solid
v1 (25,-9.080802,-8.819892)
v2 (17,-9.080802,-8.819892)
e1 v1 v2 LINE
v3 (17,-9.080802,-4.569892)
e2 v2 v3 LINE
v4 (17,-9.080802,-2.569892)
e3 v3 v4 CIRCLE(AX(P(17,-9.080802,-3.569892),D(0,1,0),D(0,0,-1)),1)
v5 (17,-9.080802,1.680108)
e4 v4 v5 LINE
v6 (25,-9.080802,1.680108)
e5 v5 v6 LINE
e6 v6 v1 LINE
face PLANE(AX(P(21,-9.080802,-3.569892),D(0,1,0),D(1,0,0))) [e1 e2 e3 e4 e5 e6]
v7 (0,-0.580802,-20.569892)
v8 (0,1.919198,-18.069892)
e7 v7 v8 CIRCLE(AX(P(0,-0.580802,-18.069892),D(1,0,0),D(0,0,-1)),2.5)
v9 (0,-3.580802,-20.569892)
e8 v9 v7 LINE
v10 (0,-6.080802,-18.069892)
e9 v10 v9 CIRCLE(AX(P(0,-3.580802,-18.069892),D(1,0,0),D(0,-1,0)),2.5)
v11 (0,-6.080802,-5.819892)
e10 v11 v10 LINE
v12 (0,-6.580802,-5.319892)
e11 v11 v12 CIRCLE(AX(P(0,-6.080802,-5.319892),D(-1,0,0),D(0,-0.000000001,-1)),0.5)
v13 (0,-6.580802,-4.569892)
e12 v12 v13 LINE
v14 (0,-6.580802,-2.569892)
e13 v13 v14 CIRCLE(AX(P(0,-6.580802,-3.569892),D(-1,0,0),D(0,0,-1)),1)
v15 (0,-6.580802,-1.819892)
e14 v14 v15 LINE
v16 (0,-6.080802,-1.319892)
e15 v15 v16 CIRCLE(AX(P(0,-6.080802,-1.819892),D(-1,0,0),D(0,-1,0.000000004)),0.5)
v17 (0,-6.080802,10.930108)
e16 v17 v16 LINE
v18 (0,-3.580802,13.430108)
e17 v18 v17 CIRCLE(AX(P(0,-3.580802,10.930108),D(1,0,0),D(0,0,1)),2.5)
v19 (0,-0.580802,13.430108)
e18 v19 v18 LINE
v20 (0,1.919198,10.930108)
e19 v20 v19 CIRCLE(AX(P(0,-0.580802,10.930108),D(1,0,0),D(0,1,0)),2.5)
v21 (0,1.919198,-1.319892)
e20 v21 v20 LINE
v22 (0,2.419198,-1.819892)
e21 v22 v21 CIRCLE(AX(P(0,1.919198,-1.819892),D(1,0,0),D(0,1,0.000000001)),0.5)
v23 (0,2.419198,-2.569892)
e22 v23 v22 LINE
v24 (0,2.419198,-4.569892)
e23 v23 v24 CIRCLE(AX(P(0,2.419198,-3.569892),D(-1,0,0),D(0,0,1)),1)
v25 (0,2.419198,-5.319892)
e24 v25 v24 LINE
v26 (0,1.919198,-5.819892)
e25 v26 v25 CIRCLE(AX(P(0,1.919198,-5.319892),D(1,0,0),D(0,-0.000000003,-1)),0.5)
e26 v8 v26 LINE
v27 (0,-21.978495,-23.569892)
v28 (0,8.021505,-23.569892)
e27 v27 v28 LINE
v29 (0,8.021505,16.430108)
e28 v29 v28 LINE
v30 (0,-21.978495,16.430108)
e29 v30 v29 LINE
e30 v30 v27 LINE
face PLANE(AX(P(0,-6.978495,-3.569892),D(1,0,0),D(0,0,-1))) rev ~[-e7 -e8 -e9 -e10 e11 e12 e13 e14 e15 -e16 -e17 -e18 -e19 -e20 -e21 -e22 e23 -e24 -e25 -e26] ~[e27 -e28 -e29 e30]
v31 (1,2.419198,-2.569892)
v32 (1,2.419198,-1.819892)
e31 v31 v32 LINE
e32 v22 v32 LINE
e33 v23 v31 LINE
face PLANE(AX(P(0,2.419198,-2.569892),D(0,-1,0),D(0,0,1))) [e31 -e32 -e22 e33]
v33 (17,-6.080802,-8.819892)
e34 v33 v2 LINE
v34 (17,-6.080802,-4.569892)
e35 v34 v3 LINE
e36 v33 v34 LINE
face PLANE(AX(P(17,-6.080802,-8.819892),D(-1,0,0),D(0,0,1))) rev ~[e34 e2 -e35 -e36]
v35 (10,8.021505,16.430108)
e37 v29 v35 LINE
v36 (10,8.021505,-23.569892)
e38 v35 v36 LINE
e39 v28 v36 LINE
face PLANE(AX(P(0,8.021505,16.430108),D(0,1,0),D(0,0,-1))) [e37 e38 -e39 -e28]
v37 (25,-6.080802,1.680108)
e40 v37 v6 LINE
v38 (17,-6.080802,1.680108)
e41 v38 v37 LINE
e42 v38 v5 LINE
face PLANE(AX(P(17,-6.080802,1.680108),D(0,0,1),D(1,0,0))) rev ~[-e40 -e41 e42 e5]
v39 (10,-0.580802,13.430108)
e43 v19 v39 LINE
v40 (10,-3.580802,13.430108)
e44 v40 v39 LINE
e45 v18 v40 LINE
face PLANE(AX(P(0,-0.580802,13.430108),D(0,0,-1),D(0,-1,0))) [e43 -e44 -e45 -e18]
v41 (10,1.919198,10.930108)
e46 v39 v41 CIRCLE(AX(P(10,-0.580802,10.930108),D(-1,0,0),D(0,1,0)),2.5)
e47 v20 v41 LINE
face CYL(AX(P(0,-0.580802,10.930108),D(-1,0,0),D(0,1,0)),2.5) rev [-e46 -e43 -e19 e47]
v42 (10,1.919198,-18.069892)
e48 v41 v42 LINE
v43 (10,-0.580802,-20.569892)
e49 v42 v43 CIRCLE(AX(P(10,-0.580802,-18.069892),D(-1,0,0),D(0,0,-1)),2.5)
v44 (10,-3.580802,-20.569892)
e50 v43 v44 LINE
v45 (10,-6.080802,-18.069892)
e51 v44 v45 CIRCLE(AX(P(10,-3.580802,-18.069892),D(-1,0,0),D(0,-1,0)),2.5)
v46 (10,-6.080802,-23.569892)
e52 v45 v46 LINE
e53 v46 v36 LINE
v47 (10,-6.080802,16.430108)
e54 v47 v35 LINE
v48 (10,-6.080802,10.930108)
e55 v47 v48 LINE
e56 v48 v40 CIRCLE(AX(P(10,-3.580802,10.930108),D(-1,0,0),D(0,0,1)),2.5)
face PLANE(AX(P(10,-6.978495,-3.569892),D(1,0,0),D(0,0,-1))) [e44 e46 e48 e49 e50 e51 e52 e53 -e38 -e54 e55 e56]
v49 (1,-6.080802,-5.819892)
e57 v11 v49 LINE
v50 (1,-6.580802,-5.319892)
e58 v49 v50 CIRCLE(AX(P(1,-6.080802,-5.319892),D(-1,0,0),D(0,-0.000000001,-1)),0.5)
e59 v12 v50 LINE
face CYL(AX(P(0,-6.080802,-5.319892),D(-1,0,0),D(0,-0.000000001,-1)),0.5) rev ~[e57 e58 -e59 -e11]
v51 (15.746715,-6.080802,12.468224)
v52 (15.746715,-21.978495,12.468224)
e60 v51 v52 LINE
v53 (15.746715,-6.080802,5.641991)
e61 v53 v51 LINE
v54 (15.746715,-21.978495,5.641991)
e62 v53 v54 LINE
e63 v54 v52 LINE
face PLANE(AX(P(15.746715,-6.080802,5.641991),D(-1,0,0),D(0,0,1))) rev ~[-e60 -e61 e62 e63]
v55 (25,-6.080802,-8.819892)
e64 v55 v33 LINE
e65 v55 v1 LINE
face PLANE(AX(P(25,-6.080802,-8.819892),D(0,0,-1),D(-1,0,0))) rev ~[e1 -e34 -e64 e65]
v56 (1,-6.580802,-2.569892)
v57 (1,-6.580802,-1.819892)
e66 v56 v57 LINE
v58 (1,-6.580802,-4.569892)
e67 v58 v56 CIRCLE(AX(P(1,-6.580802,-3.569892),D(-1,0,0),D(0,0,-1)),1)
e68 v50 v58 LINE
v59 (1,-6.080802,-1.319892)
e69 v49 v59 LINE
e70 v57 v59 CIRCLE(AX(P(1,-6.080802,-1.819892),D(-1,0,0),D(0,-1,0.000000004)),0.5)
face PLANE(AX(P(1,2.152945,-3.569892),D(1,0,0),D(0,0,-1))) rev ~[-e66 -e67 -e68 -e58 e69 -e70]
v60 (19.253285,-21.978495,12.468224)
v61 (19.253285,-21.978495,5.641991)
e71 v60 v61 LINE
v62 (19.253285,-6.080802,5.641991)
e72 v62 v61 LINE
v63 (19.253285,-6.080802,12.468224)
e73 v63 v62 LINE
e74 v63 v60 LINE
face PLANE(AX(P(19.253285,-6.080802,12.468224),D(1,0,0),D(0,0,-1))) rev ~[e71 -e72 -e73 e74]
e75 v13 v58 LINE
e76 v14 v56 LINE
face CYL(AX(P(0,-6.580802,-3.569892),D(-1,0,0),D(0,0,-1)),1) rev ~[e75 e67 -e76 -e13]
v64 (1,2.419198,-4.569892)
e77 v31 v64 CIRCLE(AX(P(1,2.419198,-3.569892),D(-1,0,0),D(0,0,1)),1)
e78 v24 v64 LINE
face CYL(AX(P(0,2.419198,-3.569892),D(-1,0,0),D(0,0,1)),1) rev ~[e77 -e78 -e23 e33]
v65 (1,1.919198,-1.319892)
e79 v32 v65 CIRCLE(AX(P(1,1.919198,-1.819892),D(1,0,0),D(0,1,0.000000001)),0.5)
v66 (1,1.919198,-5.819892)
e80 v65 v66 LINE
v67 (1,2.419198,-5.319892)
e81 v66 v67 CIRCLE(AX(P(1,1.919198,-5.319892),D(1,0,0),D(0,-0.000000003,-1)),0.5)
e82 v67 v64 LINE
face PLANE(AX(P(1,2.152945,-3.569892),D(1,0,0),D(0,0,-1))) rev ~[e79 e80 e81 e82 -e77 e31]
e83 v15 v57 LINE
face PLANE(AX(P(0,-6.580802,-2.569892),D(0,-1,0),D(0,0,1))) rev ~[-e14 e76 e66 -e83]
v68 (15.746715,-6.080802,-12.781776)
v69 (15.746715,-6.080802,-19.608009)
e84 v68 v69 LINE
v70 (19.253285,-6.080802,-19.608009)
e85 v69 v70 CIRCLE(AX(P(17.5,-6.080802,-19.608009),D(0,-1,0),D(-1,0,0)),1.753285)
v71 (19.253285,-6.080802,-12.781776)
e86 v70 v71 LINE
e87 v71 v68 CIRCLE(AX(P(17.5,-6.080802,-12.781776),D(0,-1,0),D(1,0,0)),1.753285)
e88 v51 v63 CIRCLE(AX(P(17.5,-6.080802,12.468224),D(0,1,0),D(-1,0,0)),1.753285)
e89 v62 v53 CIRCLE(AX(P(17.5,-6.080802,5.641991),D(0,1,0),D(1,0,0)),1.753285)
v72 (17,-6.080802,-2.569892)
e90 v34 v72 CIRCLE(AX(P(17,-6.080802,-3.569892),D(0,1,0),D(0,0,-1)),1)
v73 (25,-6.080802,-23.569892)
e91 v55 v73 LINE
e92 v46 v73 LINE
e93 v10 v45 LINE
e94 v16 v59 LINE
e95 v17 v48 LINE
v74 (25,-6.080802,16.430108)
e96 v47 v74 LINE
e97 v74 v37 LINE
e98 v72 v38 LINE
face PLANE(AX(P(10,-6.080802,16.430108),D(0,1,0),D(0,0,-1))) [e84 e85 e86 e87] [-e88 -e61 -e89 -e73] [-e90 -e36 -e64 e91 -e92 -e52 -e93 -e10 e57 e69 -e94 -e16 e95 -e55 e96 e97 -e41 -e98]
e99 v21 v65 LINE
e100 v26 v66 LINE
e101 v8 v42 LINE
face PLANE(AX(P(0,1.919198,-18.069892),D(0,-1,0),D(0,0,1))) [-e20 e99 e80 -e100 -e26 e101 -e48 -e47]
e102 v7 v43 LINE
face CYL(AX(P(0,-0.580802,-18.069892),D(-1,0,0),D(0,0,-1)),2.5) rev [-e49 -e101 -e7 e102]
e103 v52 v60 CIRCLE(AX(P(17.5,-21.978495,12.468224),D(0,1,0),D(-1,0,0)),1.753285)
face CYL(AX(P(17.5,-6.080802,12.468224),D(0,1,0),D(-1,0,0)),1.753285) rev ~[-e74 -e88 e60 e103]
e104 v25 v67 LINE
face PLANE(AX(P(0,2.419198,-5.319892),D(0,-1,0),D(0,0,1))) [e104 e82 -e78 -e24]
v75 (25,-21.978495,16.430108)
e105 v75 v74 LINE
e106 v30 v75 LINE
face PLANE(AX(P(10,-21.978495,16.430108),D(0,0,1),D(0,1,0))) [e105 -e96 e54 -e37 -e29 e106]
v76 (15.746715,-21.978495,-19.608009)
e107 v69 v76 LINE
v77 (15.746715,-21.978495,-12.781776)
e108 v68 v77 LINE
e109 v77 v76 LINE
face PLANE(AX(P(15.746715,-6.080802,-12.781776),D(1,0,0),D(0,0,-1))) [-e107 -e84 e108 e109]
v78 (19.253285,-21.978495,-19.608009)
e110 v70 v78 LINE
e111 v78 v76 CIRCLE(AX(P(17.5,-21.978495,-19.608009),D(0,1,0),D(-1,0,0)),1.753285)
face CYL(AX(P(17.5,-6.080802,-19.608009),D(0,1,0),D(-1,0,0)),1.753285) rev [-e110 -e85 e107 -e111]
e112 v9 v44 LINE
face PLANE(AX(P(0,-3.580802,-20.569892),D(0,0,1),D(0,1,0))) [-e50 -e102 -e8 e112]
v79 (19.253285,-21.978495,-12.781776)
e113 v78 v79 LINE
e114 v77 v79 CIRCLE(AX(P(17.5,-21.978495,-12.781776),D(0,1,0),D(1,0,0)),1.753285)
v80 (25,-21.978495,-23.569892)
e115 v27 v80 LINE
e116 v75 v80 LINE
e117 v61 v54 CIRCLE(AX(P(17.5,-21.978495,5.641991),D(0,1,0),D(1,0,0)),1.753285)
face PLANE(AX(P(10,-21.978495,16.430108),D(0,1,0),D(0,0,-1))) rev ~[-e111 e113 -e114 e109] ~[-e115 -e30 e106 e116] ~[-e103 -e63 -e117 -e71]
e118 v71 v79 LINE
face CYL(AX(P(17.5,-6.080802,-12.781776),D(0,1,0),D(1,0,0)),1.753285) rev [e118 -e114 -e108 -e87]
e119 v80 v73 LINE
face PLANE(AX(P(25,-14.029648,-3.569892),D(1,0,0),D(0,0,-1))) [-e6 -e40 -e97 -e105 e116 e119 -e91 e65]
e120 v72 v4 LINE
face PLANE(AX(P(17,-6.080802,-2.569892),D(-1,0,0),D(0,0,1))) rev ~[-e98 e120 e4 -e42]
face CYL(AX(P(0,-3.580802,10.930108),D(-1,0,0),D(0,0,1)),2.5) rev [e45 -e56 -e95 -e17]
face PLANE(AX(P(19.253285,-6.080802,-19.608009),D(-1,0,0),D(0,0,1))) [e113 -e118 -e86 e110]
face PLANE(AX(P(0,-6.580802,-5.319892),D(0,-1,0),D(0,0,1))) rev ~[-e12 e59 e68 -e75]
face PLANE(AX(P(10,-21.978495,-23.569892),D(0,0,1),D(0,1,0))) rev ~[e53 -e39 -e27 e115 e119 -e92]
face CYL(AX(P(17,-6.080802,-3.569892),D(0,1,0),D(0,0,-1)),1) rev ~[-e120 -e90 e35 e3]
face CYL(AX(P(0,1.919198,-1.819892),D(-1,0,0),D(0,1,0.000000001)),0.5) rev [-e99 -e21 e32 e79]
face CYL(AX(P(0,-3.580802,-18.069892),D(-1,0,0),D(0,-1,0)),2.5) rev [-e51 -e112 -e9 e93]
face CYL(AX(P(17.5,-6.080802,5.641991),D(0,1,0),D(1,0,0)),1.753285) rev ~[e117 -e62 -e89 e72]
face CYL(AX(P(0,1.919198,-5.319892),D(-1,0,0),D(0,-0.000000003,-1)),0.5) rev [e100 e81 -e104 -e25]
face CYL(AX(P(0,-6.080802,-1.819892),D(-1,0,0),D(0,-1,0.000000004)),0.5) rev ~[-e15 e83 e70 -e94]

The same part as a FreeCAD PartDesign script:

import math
import FreeCAD as App
import Part
import Sketcher
from FreeCAD import Vector
Q = App.Units.Quantity

doc = App.newDocument("Part")
body = doc.addObject("PartDesign::Body", "Body")

# Sketch on YZ plane
sketch1 = body.newObject("Sketcher::SketchObject", "Sketch")
sketch1.AttachmentSupport = (doc.getObject("YZ_Plane"), [""])
sketch1.MapMode = "FlatFace"
sketch1.addGeometry([
    Part.LineSegment(Vector(8, 16, 0), Vector(-22, 16, 0)),
    Part.LineSegment(Vector(-22, 16, 0), Vector(-22, -24, 0)),
    Part.LineSegment(Vector(-22, -24, 0), Vector(8, -24, 0)),
    Part.LineSegment(Vector(8, -24, 0), Vector(8, 16, 0)),
], False)
sketch1.addConstraint([
    Sketcher.Constraint("Coincident", 0, 2, 1, 1),
    Sketcher.Constraint("Coincident", 1, 2, 2, 1),
    Sketcher.Constraint("Coincident", 2, 2, 3, 1),
    Sketcher.Constraint("Coincident", 3, 2, 0, 1),
    Sketcher.Constraint("Horizontal", 0),
    Sketcher.Constraint("Vertical", 1),
    Sketcher.Constraint("Horizontal", 2),
    Sketcher.Constraint("Vertical", 3),
    Sketcher.Constraint("DistanceX", 0, 2, 0, 1, Q("30 mm")),
    Sketcher.Constraint("DistanceY", 1, 2, 1, 1, Q("40 mm")),
    Sketcher.Constraint("DistanceX", 0, 2, -1, 1, Q("21.978495 mm")),
    Sketcher.Constraint("DistanceY", -1, 1, 0, 2, Q("16.430108 mm")),
])
pad1 = body.newObject("PartDesign::Pad", "Pad")
pad1.Profile = sketch1
pad1.Length = 10

# Sketch on YZ plane
sketch2 = body.newObject("Sketcher::SketchObject", "Sketch001")
sketch2.AttachmentSupport = (doc.getObject("YZ_Plane"), [""])
sketch2.MapMode = "FlatFace"
sketch2.addGeometry([
    Part.LineSegment(Vector(2.42, -4.57, 0), Vector(2.42, -5.32, 0)),  # 0
    Part.ArcOfCircle(Part.Circle(Vector(1.92, -5.32, 0), Vector(0, 0, 1), 0.5), math.radians(-90), math.radians(0)),  # 1
    Part.LineSegment(Vector(1.92, -5.82, 0), Vector(-6.08, -5.82, 0)),  # 2
    Part.ArcOfCircle(Part.Circle(Vector(-6.08, -5.32, 0), Vector(0, 0, 1), 0.5), math.radians(180), math.radians(270)),  # 3
    Part.LineSegment(Vector(-6.58, -5.32, 0), Vector(-6.58, -4.57, 0)),  # 4
    Part.ArcOfCircle(Part.Circle(Vector(-6.58, -3.57, 0), Vector(0, 0, 1), 1), math.radians(90), math.radians(270)),  # 5
    Part.LineSegment(Vector(-6.58, -2.57, 0), Vector(-6.58, -1.82, 0)),  # 6
    Part.ArcOfCircle(Part.Circle(Vector(-6.08, -1.82, 0), Vector(0, 0, 1), 0.5), math.radians(90), math.radians(180)),  # 7
    Part.LineSegment(Vector(-6.08, -1.32, 0), Vector(1.92, -1.32, 0)),  # 8
    Part.ArcOfCircle(Part.Circle(Vector(1.92, -1.82, 0), Vector(0, 0, 1), 0.5), math.radians(0), math.radians(90)),  # 9
    Part.LineSegment(Vector(2.42, -1.82, 0), Vector(2.42, -2.57, 0)),  # 10
    Part.ArcOfCircle(Part.Circle(Vector(2.42, -3.57, 0), Vector(0, 0, 1), 1), math.radians(-90), math.radians(90)),  # 11
], False)
sketch2.addConstraint([
    Sketcher.Constraint("Tangent", 0, 2, 1, 2),
    Sketcher.Constraint("Tangent", 1, 1, 2, 1),
    Sketcher.Constraint("Tangent", 2, 2, 3, 2),
    Sketcher.Constraint("Tangent", 3, 1, 4, 1),
    Sketcher.Constraint("Coincident", 4, 2, 5, 2),
    Sketcher.Constraint("Coincident", 5, 1, 6, 1),
    Sketcher.Constraint("Tangent", 6, 2, 7, 2),
    Sketcher.Constraint("Tangent", 7, 1, 8, 1),
    Sketcher.Constraint("Tangent", 8, 2, 9, 2),
    Sketcher.Constraint("Tangent", 9, 1, 10, 1),
    Sketcher.Constraint("Coincident", 10, 2, 11, 2),
    Sketcher.Constraint("Coincident", 11, 1, 0, 1),
    Sketcher.Constraint("Vertical", 0),
    Sketcher.Constraint("Horizontal", 2),
    Sketcher.Constraint("Vertical", 4),
    Sketcher.Constraint("Vertical", 6),
    Sketcher.Constraint("Horizontal", 8),
    Sketcher.Constraint("Vertical", 10),
    Sketcher.Constraint("Equal", 1, 3),
    Sketcher.Constraint("Equal", 3, 7),
    Sketcher.Constraint("Equal", 7, 9),
    Sketcher.Constraint("Equal", 5, 11),
    Sketcher.Constraint("Horizontal", 5, 3, 11, 3),
    Sketcher.Constraint("Vertical", 3, 3, 7, 3),
    Sketcher.Constraint("Vertical", 1, 3, 9, 3),
    Sketcher.Constraint("Vertical", 11, 3, 0, 2),
    Sketcher.Constraint("Vertical", 5, 3, 3, 1),
    Sketcher.Constraint("Equal", 4, 6),
    Sketcher.Constraint("Radius", 5, Q("1 mm")),
    Sketcher.Constraint("Radius", 1, Q("0.5 mm")),
    Sketcher.Constraint("DistanceX", 2, 2, 2, 1, Q("8 mm")),
    Sketcher.Constraint("DistanceY", 1, 1, 9, 3, Q("4 mm")),
    Sketcher.Constraint("DistanceX", -1, 1, 1, 3, Q("1.919198 mm")),
    Sketcher.Constraint("DistanceY", 1, 3, -1, 1, Q("5.319892 mm")),
])
pocket1 = body.newObject("PartDesign::Pocket", "Pocket")
pocket1.Profile = sketch2
pocket1.Length = 1
pocket1.Reversed = True

# Sketch on YZ plane
sketch3 = body.newObject("Sketcher::SketchObject", "Sketch002")
sketch3.AttachmentSupport = (doc.getObject("YZ_Plane"), [""])
sketch3.MapMode = "FlatFace"
sketch3.addGeometry([
    Part.LineSegment(Vector(1.9, 10.9, 0), Vector(1.9, -18.1, 0)),  # 0
    Part.ArcOfCircle(Part.Circle(Vector(-0.6, -18.1, 0), Vector(0, 0, 1), 2.5), math.radians(-90), math.radians(0)),  # 1
    Part.LineSegment(Vector(-0.6, -20.6, 0), Vector(-3.6, -20.6, 0)),  # 2
    Part.ArcOfCircle(Part.Circle(Vector(-3.6, -18.1, 0), Vector(0, 0, 1), 2.5), math.radians(180), math.radians(270)),  # 3
    Part.LineSegment(Vector(-6.1, -18.1, 0), Vector(-6.1, 10.9, 0)),  # 4
    Part.ArcOfCircle(Part.Circle(Vector(-3.6, 10.9, 0), Vector(0, 0, 1), 2.5), math.radians(90), math.radians(180)),  # 5
    Part.LineSegment(Vector(-3.6, 13.4, 0), Vector(-0.6, 13.4, 0)),  # 6
    Part.ArcOfCircle(Part.Circle(Vector(-0.6, 10.9, 0), Vector(0, 0, 1), 2.5), math.radians(0), math.radians(90)),  # 7
], False)
sketch3.addConstraint([
    Sketcher.Constraint("Tangent", 0, 2, 1, 2),
    Sketcher.Constraint("Tangent", 1, 1, 2, 1),
    Sketcher.Constraint("Tangent", 2, 2, 3, 2),
    Sketcher.Constraint("Tangent", 3, 1, 4, 1),
    Sketcher.Constraint("Tangent", 4, 2, 5, 2),
    Sketcher.Constraint("Tangent", 5, 1, 6, 1),
    Sketcher.Constraint("Tangent", 6, 2, 7, 2),
    Sketcher.Constraint("Tangent", 7, 1, 0, 1),
    Sketcher.Constraint("Vertical", 0),
    Sketcher.Constraint("Horizontal", 2),
    Sketcher.Constraint("Vertical", 4),
    Sketcher.Constraint("Horizontal", 6),
    Sketcher.Constraint("Equal", 1, 3),
    Sketcher.Constraint("Equal", 3, 5),
    Sketcher.Constraint("Equal", 5, 7),
    Sketcher.Constraint("Radius", 1, Q("2.5 mm")),
    Sketcher.Constraint("DistanceX", 2, 2, 2, 1, Q("3 mm")),
    Sketcher.Constraint("DistanceY", 0, 2, 0, 1, Q("29 mm")),
    Sketcher.Constraint("DistanceX", 1, 3, -1, 1, Q("0.580802 mm")),
    Sketcher.Constraint("DistanceY", 1, 3, -1, 1, Q("18.069892 mm")),
])
pocket2 = body.newObject("PartDesign::Pocket", "Pocket001")
pocket2.Profile = sketch3
pocket2.Type = "ThroughAll"
pocket2.Reversed = True

# Sketch on YZ plane
sketch4 = body.newObject("Sketcher::SketchObject", "Sketch003")
sketch4.AttachmentSupport = (doc.getObject("YZ_Plane"), [""])
sketch4.MapMode = "FlatFace"
sketch4.AttachmentOffset = App.Placement(Vector(0, 0, 10), App.Rotation())
sketch4.addGeometry([
    Part.LineSegment(Vector(-6, 16, 0), Vector(-22, 16, 0)),
    Part.LineSegment(Vector(-22, 16, 0), Vector(-22, -24, 0)),
    Part.LineSegment(Vector(-22, -24, 0), Vector(-6, -24, 0)),
    Part.LineSegment(Vector(-6, -24, 0), Vector(-6, 16, 0)),
], False)
sketch4.addConstraint([
    Sketcher.Constraint("Coincident", 0, 2, 1, 1),
    Sketcher.Constraint("Coincident", 1, 2, 2, 1),
    Sketcher.Constraint("Coincident", 2, 2, 3, 1),
    Sketcher.Constraint("Coincident", 3, 2, 0, 1),
    Sketcher.Constraint("Horizontal", 0),
    Sketcher.Constraint("Vertical", 1),
    Sketcher.Constraint("Horizontal", 2),
    Sketcher.Constraint("Vertical", 3),
    Sketcher.Constraint("DistanceY", 1, 2, 1, 1, Q("40 mm")),
    Sketcher.Constraint("DistanceX", 2, 2, -1, 1, Q("6.080802 mm")),
    Sketcher.Constraint("DistanceX", 0, 2, 0, 1, Q("15.897693 mm")),
    Sketcher.Constraint("DistanceY", -1, 1, 0, 2, Q("16.430108 mm")),
])
pad2 = body.newObject("PartDesign::Pad", "Pad001")
pad2.Profile = sketch4
pad2.Length = 15

# Sketch on XZ plane
sketch5 = body.newObject("Sketcher::SketchObject", "Sketch004")
sketch5.AttachmentSupport = (doc.getObject("XZ_Plane"), [""])
sketch5.MapMode = "FlatFace"
sketch5.AttachmentOffset = App.Placement(Vector(0, 0, 6.080802), App.Rotation())
sketch5.addGeometry([
    Part.LineSegment(Vector(17, 1.7, 0), Vector(25, 1.7, 0)),  # 0
    Part.LineSegment(Vector(25, 1.7, 0), Vector(25, -8.8, 0)),  # 1
    Part.LineSegment(Vector(25, -8.8, 0), Vector(17, -8.8, 0)),  # 2
    Part.LineSegment(Vector(17, -8.8, 0), Vector(17, -4.6, 0)),  # 3
    Part.ArcOfCircle(Part.Circle(Vector(17, -3.6, 0), Vector(0, 0, 1), 1), math.radians(90), math.radians(270)),  # 4
    Part.LineSegment(Vector(17, -2.6, 0), Vector(17, 1.7, 0)),  # 5
], False)
sketch5.addConstraint([
    Sketcher.Constraint("Coincident", 0, 2, 1, 1),
    Sketcher.Constraint("Coincident", 1, 2, 2, 1),
    Sketcher.Constraint("Coincident", 2, 2, 3, 1),
    Sketcher.Constraint("Coincident", 3, 2, 4, 2),
    Sketcher.Constraint("Coincident", 4, 1, 5, 1),
    Sketcher.Constraint("Coincident", 5, 2, 0, 1),
    Sketcher.Constraint("Horizontal", 0),
    Sketcher.Constraint("Vertical", 1),
    Sketcher.Constraint("Horizontal", 2),
    Sketcher.Constraint("Vertical", 3),
    Sketcher.Constraint("Vertical", 5),
    Sketcher.Constraint("Vertical", 4, 3, 2, 2),
    Sketcher.Constraint("Vertical", 3, 2, 4, 1),
    Sketcher.Constraint("Equal", 3, 5),
    Sketcher.Constraint("Radius", 4, Q("1 mm")),
    Sketcher.Constraint("DistanceX", 0, 1, 0, 2, Q("8 mm")),
    Sketcher.Constraint("DistanceY", 1, 2, 1, 1, Q("10.5 mm")),
    Sketcher.Constraint("DistanceX", -1, 1, 4, 3, Q("17 mm")),
    Sketcher.Constraint("DistanceY", 4, 3, -1, 1, Q("3.569892 mm")),
])
pocket3 = body.newObject("PartDesign::Pocket", "Pocket002")
pocket3.Profile = sketch5
pocket3.Length = 3
pocket3.Reversed = True

# Sketch on XZ plane
sketch6 = body.newObject("Sketcher::SketchObject", "Sketch005")
sketch6.AttachmentSupport = (doc.getObject("XZ_Plane"), [""])
sketch6.MapMode = "FlatFace"
sketch6.AttachmentOffset = App.Placement(Vector(0, 0, 6.080802), App.Rotation())
sketch6.addGeometry([
    Part.LineSegment(Vector(15.7, -19.6, 0), Vector(15.7, -12.8, 0)),  # 0
    Part.ArcOfCircle(Part.Circle(Vector(17.5, -12.8, 0), Vector(0, 0, 1), 1.8), math.radians(0), math.radians(180)),  # 1
    Part.LineSegment(Vector(19.3, -12.8, 0), Vector(19.3, -19.6, 0)),  # 2
    Part.ArcOfCircle(Part.Circle(Vector(17.5, -19.6, 0), Vector(0, 0, 1), 1.8), math.radians(180), math.radians(360)),  # 3
    Part.LineSegment(Vector(15.7, 5.6, 0), Vector(15.7, 12.5, 0)),  # 4
    Part.ArcOfCircle(Part.Circle(Vector(17.5, 12.5, 0), Vector(0, 0, 1), 1.8), math.radians(0), math.radians(180)),  # 5
    Part.LineSegment(Vector(19.3, 12.5, 0), Vector(19.3, 5.6, 0)),  # 6
    Part.ArcOfCircle(Part.Circle(Vector(17.5, 5.6, 0), Vector(0, 0, 1), 1.8), math.radians(180), math.radians(360)),  # 7
], False)
sketch6.addConstraint([
    Sketcher.Constraint("Tangent", 0, 2, 1, 2),
    Sketcher.Constraint("Tangent", 1, 1, 2, 1),
    Sketcher.Constraint("Tangent", 2, 2, 3, 2),
    Sketcher.Constraint("Tangent", 3, 1, 0, 1),
    Sketcher.Constraint("Tangent", 4, 2, 5, 2),
    Sketcher.Constraint("Tangent", 5, 1, 6, 1),
    Sketcher.Constraint("Tangent", 6, 2, 7, 2),
    Sketcher.Constraint("Tangent", 7, 1, 4, 1),
    Sketcher.Constraint("Vertical", 0),
    Sketcher.Constraint("Vertical", 2),
    Sketcher.Constraint("Vertical", 4),
    Sketcher.Constraint("Vertical", 6),
    Sketcher.Constraint("Equal", 3, 5),
    Sketcher.Constraint("Vertical", 3, 3, 5, 3),
    Sketcher.Constraint("Equal", 2, 4),
    Sketcher.Constraint("DistanceX", -1, 1, 1, 3, Q("17.5 mm")),
    Sketcher.Constraint("DistanceY", 1, 3, 5, 3, Q("25.25 mm")),
    Sketcher.Constraint("Radius", 1, Q("1.753285 mm")),
    Sketcher.Constraint("DistanceY", 0, 1, 0, 2, Q("6.826232 mm")),
    Sketcher.Constraint("DistanceY", 3, 3, -1, 1, Q("19.608009 mm")),
])
pocket4 = body.newObject("PartDesign::Pocket", "Pocket003")
pocket4.Profile = sketch6
pocket4.Type = "ThroughAll"
pocket4.Reversed = True

doc.recompute()
